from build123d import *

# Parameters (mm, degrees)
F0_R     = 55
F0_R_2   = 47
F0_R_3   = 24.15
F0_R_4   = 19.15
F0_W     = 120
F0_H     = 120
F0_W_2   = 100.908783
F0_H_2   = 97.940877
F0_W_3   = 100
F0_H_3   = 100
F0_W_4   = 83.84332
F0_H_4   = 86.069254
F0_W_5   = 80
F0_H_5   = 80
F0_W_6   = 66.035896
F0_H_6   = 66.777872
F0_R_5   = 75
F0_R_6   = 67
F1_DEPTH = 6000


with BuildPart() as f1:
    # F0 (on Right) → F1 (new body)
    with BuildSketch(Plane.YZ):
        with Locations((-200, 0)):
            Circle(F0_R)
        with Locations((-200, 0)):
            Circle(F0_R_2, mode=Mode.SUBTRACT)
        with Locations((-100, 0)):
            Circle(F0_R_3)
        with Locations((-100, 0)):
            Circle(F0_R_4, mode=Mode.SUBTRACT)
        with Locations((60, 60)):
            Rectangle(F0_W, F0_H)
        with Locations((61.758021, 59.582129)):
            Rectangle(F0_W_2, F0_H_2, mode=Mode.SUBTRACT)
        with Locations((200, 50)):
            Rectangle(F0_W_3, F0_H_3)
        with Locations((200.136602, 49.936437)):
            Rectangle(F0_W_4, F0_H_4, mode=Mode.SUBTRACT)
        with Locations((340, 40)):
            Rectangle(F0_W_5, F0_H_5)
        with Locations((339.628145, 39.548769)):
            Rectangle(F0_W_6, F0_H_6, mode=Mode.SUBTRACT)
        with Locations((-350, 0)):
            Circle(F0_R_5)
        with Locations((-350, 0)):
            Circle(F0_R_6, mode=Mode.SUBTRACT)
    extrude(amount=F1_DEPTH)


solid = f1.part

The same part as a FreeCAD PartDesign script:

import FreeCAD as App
import Part
import Sketcher

doc = App.newDocument("Part")
body = doc.addObject("PartDesign::Body", "Body")
body.AllowCompound = True

sketch1 = body.newObject("Sketcher::SketchObject", "Sketch")
sketch1.AttachmentSupport = (doc.getObject("YZ_Plane"), [""])
sketch1.MapMode = "FlatFace"
sketch1.addGeometry([
    Part.Circle(App.Vector(-200, 0, 0), App.Vector(0, 0, 1), 55),
    Part.Circle(App.Vector(-200, 0, 0), App.Vector(0, 0, 1), 47),
    Part.Circle(App.Vector(-100, 0, 0), App.Vector(0, 0, 1), 24),
    Part.Circle(App.Vector(-100, 0, 0), App.Vector(0, 0, 1), 19),
    Part.LineSegment(App.Vector(0, 120, 0), App.Vector(0, 0, 0)),
    Part.LineSegment(App.Vector(0, 0, 0), App.Vector(120, 0, 0)),
    Part.LineSegment(App.Vector(120, 0, 0), App.Vector(120, 120, 0)),
    Part.LineSegment(App.Vector(120, 120, 0), App.Vector(0, 120, 0)),
    Part.LineSegment(App.Vector(112, 11, 0), App.Vector(11, 11, 0)),
    Part.LineSegment(App.Vector(11, 11, 0), App.Vector(11, 109, 0)),
    Part.LineSegment(App.Vector(11, 109, 0), App.Vector(112, 109, 0)),
    Part.LineSegment(App.Vector(112, 109, 0), App.Vector(112, 11, 0)),
    Part.LineSegment(App.Vector(150, 100, 0), App.Vector(150, 0, 0)),
    Part.LineSegment(App.Vector(150, 0, 0), App.Vector(250, 0, 0)),
    Part.LineSegment(App.Vector(250, 0, 0), App.Vector(250, 100, 0)),
    Part.LineSegment(App.Vector(250, 100, 0), App.Vector(150, 100, 0)),
    Part.LineSegment(App.Vector(242, 7, 0), App.Vector(158, 7, 0)),
    Part.LineSegment(App.Vector(158, 7, 0), App.Vector(158, 93, 0)),
    Part.LineSegment(App.Vector(158, 93, 0), App.Vector(242, 93, 0)),
    Part.LineSegment(App.Vector(242, 93, 0), App.Vector(242, 7, 0)),
    Part.LineSegment(App.Vector(300, 80, 0), App.Vector(300, 0, 0)),
    Part.LineSegment(App.Vector(300, 0, 0), App.Vector(380, 0, 0)),
    Part.LineSegment(App.Vector(380, 0, 0), App.Vector(380, 80, 0)),
    Part.LineSegment(App.Vector(380, 80, 0), App.Vector(300, 80, 0)),
    Part.LineSegment(App.Vector(373, 6, 0), App.Vector(307, 6, 0)),
    Part.LineSegment(App.Vector(307, 6, 0), App.Vector(307, 73, 0)),
    Part.LineSegment(App.Vector(307, 73, 0), App.Vector(373, 73, 0)),
    Part.LineSegment(App.Vector(373, 73, 0), App.Vector(373, 6, 0)),
    Part.Circle(App.Vector(-350, 0, 0), App.Vector(0, 0, 1), 75),
    Part.Circle(App.Vector(-350, 0, 0), App.Vector(0, 0, 1), 67),
], False)
sketch1.addConstraint([
    Sketcher.Constraint("Coincident", 4, 2, 5, 1),
    Sketcher.Constraint("Coincident", 5, 2, 6, 1),
    Sketcher.Constraint("Coincident", 6, 2, 7, 1),
    Sketcher.Constraint("Coincident", 7, 2, 4, 1),
    Sketcher.Constraint("Coincident", 8, 2, 9, 1),
    Sketcher.Constraint("Coincident", 9, 2, 10, 1),
    Sketcher.Constraint("Coincident", 10, 2, 11, 1),
    Sketcher.Constraint("Coincident", 11, 2, 8, 1),
    Sketcher.Constraint("Coincident", 12, 2, 13, 1),
    Sketcher.Constraint("Coincident", 13, 2, 14, 1),
    Sketcher.Constraint("Coincident", 14, 2, 15, 1),
    Sketcher.Constraint("Coincident", 15, 2, 12, 1),
    Sketcher.Constraint("Coincident", 16, 2, 17, 1),
    Sketcher.Constraint("Coincident", 17, 2, 18, 1),
    Sketcher.Constraint("Coincident", 18, 2, 19, 1),
    Sketcher.Constraint("Coincident", 19, 2, 16, 1),
    Sketcher.Constraint("Coincident", 20, 2, 21, 1),
    Sketcher.Constraint("Coincident", 21, 2, 22, 1),
    Sketcher.Constraint("Coincident", 22, 2, 23, 1),
    Sketcher.Constraint("Coincident", 23, 2, 20, 1),
    Sketcher.Constraint("Coincident", 24, 2, 25, 1),
    Sketcher.Constraint("Coincident", 25, 2, 26, 1),
    Sketcher.Constraint("Coincident", 26, 2, 27, 1),
    Sketcher.Constraint("Coincident", 27, 2, 24, 1),
    Sketcher.Constraint("Vertical", 4),
    Sketcher.Constraint("Horizontal", 5),
    Sketcher.Constraint("Vertical", 6),
    Sketcher.Constraint("Horizontal", 7),
    Sketcher.Constraint("Horizontal", 8),
    Sketcher.Constraint("Vertical", 9),
    Sketcher.Constraint("Horizontal", 10),
    Sketcher.Constraint("Vertical", 11),
    Sketcher.Constraint("Vertical", 12),
    Sketcher.Constraint("Horizontal", 13),
    Sketcher.Constraint("Vertical", 14),
    Sketcher.Constraint("Horizontal", 15),
    Sketcher.Constraint("Horizontal", 16),
    Sketcher.Constraint("Vertical", 17),
    Sketcher.Constraint("Horizontal", 18),
    Sketcher.Constraint("Vertical", 19),
    Sketcher.Constraint("Vertical", 20),
    Sketcher.Constraint("Horizontal", 21),
    Sketcher.Constraint("Vertical", 22),
    Sketcher.Constraint("Horizontal", 23),
    Sketcher.Constraint("Horizontal", 24),
    Sketcher.Constraint("Vertical", 25),
    Sketcher.Constraint("Horizontal", 26),
    Sketcher.Constraint("Vertical", 27),
    Sketcher.Constraint("Coincident", 4, 2, -1, 1),
    Sketcher.Constraint("Coincident", 1, 3, 0, 3),
    Sketcher.Constraint("Coincident", 3, 3, 2, 3),
    Sketcher.Constraint("Coincident", 29, 3, 28, 3),
    Sketcher.Constraint("PointOnObject", 0, 3, -1),
    Sketcher.Constraint("PointOnObject", 2, 3, -1),
    Sketcher.Constraint("PointOnObject", 28, 3, -1),
    Sketcher.Constraint("PointOnObject", 12, 2, -1),
    Sketcher.Constraint("PointOnObject", 20, 2, -1),
    Sketcher.Constraint("Equal", 7, 4),
    Sketcher.Constraint("Equal", 15, 12),
    Sketcher.Constraint("Equal", 23, 20),
    Sketcher.Constraint("Diameter", 0, 110.0),
    Sketcher.Constraint("Diameter", 1, 94.0),
    Sketcher.Constraint("Diameter", 28, 150.0),
    Sketcher.Constraint("Diameter", 29, 134.0),
    Sketcher.Constraint("Diameter", 2, 48.3),
    Sketcher.Constraint("Diameter", 3, 38.3),
    Sketcher.Constraint("DistanceX", 5, 1, 5, 2, 120.0),
    Sketcher.Constraint("DistanceX", 13, 1, 13, 2, 100.0),
    Sketcher.Constraint("DistanceX", 21, 1, 21, 2, 80.0),
    Sketcher.Constraint("DistanceX", 0, 3, -1, 1, 200.0),
    Sketcher.Constraint("DistanceX", 2, 3, -1, 1, 100.0),
    Sketcher.Constraint("DistanceX", 28, 3, -1, 1, 350.0),
    Sketcher.Constraint("DistanceX", -1, 1, 12, 2, 150.0),
    Sketcher.Constraint("DistanceX", -1, 1, 20, 2, 300.0),
    Sketcher.Constraint("DistanceX", 16, 2, 16, 1, 83.84332),
    Sketcher.Constraint("DistanceY", 25, 1, 25, 2, 66.777872),
    Sketcher.Constraint("DistanceX", 8, 2, 8, 1, 100.908783),
    Sketcher.Constraint("DistanceX", 24, 2, 24, 1, 66.035896),
    Sketcher.Constraint("DistanceY", 9, 1, 9, 2, 97.940877),
    Sketcher.Constraint("DistanceY", 17, 1, 17, 2, 86.069254),
    Sketcher.Constraint("DistanceX", -1, 1, 8, 2, 11.303629),
    Sketcher.Constraint("DistanceY", -1, 1, 8, 2, 10.61169),
    Sketcher.Constraint("DistanceX", -1, 1, 16, 2, 158.214942),
    Sketcher.Constraint("DistanceY", -1, 1, 16, 2, 6.90181),
    Sketcher.Constraint("DistanceY", 25, 2, 18, 2, 20.033359),
    Sketcher.Constraint("DistanceX", -1, 1, 24, 2, 306.610197),
])
pad1 = body.newObject("PartDesign::Pad", "Pad")
pad1.Profile = sketch1
pad1.Length = 6000

doc.recompute()
